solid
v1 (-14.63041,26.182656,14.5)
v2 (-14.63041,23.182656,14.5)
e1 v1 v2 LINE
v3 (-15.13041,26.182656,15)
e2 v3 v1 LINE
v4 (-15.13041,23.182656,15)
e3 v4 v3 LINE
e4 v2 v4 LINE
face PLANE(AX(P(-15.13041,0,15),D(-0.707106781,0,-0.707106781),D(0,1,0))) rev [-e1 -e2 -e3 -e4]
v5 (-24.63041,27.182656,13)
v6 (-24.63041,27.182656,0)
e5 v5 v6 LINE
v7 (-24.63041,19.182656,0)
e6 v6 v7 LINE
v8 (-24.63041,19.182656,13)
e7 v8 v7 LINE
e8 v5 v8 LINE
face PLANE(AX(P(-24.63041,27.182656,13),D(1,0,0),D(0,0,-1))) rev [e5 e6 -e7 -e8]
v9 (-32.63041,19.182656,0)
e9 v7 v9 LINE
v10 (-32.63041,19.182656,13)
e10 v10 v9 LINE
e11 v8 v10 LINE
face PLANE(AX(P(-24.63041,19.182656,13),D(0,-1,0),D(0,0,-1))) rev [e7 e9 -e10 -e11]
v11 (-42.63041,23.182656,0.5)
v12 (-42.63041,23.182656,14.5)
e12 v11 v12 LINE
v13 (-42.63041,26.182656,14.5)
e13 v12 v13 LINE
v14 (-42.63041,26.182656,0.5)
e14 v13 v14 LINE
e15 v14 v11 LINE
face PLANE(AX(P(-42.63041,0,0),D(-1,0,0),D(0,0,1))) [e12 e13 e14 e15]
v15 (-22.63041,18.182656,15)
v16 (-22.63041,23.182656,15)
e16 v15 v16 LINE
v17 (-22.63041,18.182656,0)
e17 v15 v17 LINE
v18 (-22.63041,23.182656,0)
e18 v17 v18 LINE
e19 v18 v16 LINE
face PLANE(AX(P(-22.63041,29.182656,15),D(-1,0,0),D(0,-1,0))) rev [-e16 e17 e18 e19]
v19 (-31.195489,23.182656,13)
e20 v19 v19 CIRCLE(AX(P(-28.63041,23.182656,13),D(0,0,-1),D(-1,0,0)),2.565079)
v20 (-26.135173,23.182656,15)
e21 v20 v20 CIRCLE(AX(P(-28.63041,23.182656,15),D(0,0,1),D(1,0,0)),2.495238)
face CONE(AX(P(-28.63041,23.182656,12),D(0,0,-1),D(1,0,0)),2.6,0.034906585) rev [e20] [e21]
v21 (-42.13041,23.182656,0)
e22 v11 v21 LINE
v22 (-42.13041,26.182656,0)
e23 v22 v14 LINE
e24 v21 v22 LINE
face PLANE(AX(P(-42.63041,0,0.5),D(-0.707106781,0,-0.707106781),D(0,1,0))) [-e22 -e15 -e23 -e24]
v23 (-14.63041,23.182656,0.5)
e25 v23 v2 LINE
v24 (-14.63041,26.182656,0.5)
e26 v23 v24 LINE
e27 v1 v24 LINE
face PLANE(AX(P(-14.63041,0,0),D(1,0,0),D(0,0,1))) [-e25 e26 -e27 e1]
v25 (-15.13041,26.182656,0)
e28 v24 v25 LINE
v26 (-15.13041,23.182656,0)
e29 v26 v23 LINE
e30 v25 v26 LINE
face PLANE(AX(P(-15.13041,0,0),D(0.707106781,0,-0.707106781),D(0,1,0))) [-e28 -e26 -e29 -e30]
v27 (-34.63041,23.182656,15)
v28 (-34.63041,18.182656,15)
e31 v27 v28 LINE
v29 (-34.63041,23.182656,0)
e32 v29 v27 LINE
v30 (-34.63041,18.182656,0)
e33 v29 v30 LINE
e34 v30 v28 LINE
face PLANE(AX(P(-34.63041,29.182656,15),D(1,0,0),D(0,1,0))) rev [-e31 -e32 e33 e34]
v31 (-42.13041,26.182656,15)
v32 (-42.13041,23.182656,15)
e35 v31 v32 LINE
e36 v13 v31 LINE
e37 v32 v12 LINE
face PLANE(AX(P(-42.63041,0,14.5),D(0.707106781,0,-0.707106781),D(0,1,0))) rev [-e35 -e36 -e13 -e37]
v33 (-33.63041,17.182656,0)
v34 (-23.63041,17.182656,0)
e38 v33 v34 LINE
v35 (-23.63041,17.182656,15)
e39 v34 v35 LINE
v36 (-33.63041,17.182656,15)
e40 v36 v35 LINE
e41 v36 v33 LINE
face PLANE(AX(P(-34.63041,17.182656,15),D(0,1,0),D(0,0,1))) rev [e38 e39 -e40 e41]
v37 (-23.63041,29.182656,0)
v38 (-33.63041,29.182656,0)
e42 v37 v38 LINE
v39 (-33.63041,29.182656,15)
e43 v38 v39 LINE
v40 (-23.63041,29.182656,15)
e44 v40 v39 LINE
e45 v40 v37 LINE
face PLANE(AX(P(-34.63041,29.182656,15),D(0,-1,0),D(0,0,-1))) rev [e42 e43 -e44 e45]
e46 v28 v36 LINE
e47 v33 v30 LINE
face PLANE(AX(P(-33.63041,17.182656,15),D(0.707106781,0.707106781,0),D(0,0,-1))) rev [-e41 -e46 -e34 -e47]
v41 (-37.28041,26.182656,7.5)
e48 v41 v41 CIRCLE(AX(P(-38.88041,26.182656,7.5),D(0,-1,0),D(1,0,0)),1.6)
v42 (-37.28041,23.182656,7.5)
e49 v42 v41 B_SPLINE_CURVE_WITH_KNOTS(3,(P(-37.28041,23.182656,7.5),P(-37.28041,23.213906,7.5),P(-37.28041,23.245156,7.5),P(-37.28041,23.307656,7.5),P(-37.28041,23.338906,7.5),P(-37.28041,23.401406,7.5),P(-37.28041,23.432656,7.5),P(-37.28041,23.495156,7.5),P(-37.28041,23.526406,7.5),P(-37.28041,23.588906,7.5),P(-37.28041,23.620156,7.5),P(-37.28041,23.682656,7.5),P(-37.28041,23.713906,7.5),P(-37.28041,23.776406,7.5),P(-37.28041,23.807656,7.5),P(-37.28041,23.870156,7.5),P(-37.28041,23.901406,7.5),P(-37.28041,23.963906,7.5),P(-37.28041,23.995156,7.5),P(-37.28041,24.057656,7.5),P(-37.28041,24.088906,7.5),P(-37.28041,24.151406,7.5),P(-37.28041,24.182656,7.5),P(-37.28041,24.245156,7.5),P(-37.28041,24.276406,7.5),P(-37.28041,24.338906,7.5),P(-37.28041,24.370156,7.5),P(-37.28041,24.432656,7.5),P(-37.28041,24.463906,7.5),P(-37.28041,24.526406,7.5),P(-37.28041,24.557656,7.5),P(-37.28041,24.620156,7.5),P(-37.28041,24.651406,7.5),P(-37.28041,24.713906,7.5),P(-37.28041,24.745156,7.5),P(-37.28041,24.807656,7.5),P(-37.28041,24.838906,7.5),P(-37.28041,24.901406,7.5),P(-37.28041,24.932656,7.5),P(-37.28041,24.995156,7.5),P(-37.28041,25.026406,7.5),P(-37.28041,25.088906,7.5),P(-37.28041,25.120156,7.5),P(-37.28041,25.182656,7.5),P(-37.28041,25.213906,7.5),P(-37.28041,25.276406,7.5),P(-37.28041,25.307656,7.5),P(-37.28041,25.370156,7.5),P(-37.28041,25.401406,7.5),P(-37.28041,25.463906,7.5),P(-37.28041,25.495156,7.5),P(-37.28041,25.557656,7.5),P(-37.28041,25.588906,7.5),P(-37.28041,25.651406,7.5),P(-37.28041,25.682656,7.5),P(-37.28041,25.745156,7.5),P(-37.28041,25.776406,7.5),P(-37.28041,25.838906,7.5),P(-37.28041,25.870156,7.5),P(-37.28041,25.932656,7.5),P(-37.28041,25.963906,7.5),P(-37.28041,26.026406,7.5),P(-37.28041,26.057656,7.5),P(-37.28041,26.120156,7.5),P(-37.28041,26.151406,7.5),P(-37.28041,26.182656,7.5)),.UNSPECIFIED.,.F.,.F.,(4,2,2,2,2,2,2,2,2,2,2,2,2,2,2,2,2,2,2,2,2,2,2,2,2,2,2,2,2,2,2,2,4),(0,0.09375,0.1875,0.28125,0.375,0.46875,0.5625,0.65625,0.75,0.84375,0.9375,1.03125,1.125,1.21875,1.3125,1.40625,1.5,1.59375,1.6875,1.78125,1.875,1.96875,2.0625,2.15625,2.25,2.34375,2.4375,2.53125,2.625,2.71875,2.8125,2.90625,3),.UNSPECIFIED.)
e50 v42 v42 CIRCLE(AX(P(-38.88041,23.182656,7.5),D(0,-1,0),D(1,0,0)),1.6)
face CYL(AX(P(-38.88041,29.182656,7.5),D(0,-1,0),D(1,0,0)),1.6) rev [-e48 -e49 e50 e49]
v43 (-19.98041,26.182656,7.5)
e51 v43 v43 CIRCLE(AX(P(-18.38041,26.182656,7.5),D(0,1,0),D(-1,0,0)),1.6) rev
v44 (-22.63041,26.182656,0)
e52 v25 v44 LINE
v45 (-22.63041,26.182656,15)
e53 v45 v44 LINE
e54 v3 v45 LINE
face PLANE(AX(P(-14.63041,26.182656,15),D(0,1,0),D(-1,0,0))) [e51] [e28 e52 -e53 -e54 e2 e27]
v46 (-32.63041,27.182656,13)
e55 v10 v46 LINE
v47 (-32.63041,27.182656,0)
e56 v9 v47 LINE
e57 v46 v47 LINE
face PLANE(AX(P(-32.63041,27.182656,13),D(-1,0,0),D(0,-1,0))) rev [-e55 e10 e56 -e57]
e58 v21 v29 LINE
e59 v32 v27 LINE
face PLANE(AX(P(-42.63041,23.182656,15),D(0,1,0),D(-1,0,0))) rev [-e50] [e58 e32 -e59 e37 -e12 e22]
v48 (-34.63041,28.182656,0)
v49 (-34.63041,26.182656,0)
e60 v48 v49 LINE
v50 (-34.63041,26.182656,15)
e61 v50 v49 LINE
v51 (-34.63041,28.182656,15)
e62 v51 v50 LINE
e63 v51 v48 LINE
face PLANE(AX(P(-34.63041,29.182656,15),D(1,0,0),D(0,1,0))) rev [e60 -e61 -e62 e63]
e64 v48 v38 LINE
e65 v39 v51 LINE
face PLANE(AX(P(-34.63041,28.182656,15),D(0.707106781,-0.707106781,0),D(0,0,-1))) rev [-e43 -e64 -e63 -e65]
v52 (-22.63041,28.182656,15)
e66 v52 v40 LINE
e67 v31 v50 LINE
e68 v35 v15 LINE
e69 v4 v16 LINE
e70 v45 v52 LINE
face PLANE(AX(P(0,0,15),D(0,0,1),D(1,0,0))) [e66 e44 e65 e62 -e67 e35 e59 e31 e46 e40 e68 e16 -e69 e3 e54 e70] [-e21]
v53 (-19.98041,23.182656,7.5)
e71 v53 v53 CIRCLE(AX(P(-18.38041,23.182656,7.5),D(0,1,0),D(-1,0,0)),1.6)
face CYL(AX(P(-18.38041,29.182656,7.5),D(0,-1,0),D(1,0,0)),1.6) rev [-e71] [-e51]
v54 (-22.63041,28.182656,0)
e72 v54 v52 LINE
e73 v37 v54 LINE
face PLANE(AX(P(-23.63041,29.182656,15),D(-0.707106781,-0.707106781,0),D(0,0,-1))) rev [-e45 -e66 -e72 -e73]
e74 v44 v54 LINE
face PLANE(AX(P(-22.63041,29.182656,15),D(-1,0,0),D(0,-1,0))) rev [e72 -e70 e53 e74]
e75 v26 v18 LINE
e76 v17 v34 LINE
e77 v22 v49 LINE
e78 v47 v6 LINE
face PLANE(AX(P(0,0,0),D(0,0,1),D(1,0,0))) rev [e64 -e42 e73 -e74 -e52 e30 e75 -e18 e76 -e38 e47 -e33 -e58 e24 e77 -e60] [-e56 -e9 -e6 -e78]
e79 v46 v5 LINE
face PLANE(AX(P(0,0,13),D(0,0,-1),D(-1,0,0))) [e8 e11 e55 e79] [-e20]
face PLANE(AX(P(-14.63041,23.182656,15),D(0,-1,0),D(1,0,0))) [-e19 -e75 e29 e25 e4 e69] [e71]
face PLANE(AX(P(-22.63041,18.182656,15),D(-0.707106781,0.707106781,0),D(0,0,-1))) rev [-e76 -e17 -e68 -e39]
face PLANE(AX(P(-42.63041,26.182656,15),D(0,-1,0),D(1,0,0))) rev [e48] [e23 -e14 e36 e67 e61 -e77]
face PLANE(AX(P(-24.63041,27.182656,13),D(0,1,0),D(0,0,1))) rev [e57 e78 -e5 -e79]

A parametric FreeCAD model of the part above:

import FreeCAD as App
import Part
import Sketcher
from FreeCAD import Vector
Q = App.Units.Quantity


def edges_at(feature, points):
    """Names of the edges that pass closest to the given points."""
    edges = feature.Shape.Edges
    near = lambda p: min(range(len(edges)), key=lambda i: edges[i].distToShape(Part.Vertex(*p))[0])
    return sorted({f"Edge{near(p) + 1}" for p in points})


def add_polygon(sketch, points):
    """Adds a closed chain of lines whose ends are joined by coincident constraints."""
    first, n = sketch.GeometryCount, len(points)
    for a, b in zip(points, points[1:] + points[:1]):
        sketch.addGeometry(Part.LineSegment(App.Vector(*a, 0), App.Vector(*b, 0)), False)
    for i in range(n):
        sketch.addConstraint(Sketcher.Constraint("Coincident", first + i, 2, first + (i + 1) % n, 1))

doc = App.newDocument("Part")
body = doc.addObject("PartDesign::Body", "Body")

# Sketch on XY plane
sketch1 = body.newObject("Sketcher::SketchObject", "Sketch")
sketch1.AttachmentSupport = (doc.getObject("XY_Plane"), [""])
sketch1.MapMode = "FlatFace"
add_polygon(sketch1, [(-34.63041, 29.182656), (-34.63041, 17.182656), (-22.63041, 17.182656), (-22.63041, 29.182656)])  # lines 0-3
sketch1.addConstraint(Sketcher.Constraint("Vertical", 0))
sketch1.addConstraint(Sketcher.Constraint("Horizontal", 1))
sketch1.addConstraint(Sketcher.Constraint("Vertical", 2))
sketch1.addConstraint(Sketcher.Constraint("Horizontal", 3))
sketch1.addConstraint(Sketcher.Constraint("Equal", 3, 0))
sketch1.addConstraint(Sketcher.Constraint("DistanceX", 1, 1, 1, 2, Q("12 mm")))
sketch1.addConstraint(Sketcher.Constraint("DistanceX", 0, 2, -1, 1, Q("34.63041 mm")))
sketch1.addConstraint(Sketcher.Constraint("DistanceY", -1, 1, 0, 2, Q("17.182656 mm")))
pad1 = body.newObject("PartDesign::Pad", "Pad")
pad1.Profile = sketch1
pad1.Length = 15

# Sketch on XY plane
sketch2 = body.newObject("Sketcher::SketchObject", "Sketch001")
sketch2.AttachmentSupport = (doc.getObject("XY_Plane"), [""])
sketch2.MapMode = "FlatFace"
sketch2.AttachmentOffset = App.Placement(Vector(0, 0, 12), App.Rotation())
sketch2.addGeometry(Part.Circle(Vector(-28.63041, 23.182656, 0), Vector(0, 0, 1), 2.6), False)
sketch2.addConstraint(Sketcher.Constraint("Diameter", 0, Q("5.2 mm")))
sketch2.addConstraint(Sketcher.Constraint("DistanceX", 0, 3, -1, 1, Q("28.63041 mm")))
sketch2.addConstraint(Sketcher.Constraint("DistanceY", -1, 1, 0, 3, Q("23.182656 mm")))
pocket1 = body.newObject("PartDesign::Pocket", "Pocket")
pocket1.Profile = sketch2
pocket1.Type = "ThroughAll"
pocket1.Reversed = True
pocket1.TaperAngle = -2

# Sketch on XY plane
sketch3 = body.newObject("Sketcher::SketchObject", "Sketch002")
sketch3.AttachmentSupport = (doc.getObject("XY_Plane"), [""])
sketch3.MapMode = "FlatFace"
add_polygon(sketch3, [(-24.63041, 27.182656), (-24.63041, 19.182656), (-32.63041, 19.182656), (-32.63041, 27.182656)])  # lines 0-3
sketch3.addConstraint(Sketcher.Constraint("Vertical", 0))
sketch3.addConstraint(Sketcher.Constraint("Horizontal", 1))
sketch3.addConstraint(Sketcher.Constraint("Vertical", 2))
sketch3.addConstraint(Sketcher.Constraint("Horizontal", 3))
sketch3.addConstraint(Sketcher.Constraint("Equal", 3, 0))
sketch3.addConstraint(Sketcher.Constraint("DistanceX", 1, 2, 1, 1, Q("8 mm")))
sketch3.addConstraint(Sketcher.Constraint("DistanceX", 0, 2, -1, 1, Q("24.63041 mm")))
sketch3.addConstraint(Sketcher.Constraint("DistanceY", -1, 1, 0, 2, Q("19.182656 mm")))
pocket2 = body.newObject("PartDesign::Pocket", "Pocket001")
pocket2.Profile = sketch3
pocket2.Length = 13
pocket2.Reversed = True
doc.recompute()

chamfer = body.newObject("PartDesign::Chamfer", "Chamfer")
chamfer.Base = (pocket2, edges_at(pocket2, [
    (-34.63, 29.183, 7.5),
    (-22.63, 29.183, 7.5),
    (-22.63, 17.183, 7.5),
    (-34.63, 17.183, 7.5),
]))
chamfer.Size = 1

# Sketch on YZ plane
sketch4 = body.newObject("Sketcher::SketchObject", "Sketch003")
sketch4.AttachmentSupport = (doc.getObject("YZ_Plane"), [""])
sketch4.MapMode = "FlatFace"
sketch4.AttachmentOffset = App.Placement(Vector(0, 0, -34.63041), App.Rotation())
add_polygon(sketch4, [(26.182656, 0), (23.182656, 0), (23.182656, 15), (26.182656, 15)])  # lines 0-3
sketch4.addConstraint(Sketcher.Constraint("Horizontal", 0))
sketch4.addConstraint(Sketcher.Constraint("Vertical", 1))
sketch4.addConstraint(Sketcher.Constraint("Horizontal", 2))
sketch4.addConstraint(Sketcher.Constraint("Vertical", 3))
sketch4.addConstraint(Sketcher.Constraint("PointOnObject", 0, 2, -1))
sketch4.addConstraint(Sketcher.Constraint("DistanceX", 0, 2, 0, 1, Q("3 mm")))
sketch4.addConstraint(Sketcher.Constraint("DistanceY", 1, 1, 1, 2, Q("15 mm")))
sketch4.addConstraint(Sketcher.Constraint("DistanceX", -1, 1, 0, 2, Q("23.182656 mm")))
pad2 = body.newObject("PartDesign::Pad", "Pad001")
pad2.Profile = sketch4
pad2.Length = 8
pad2.Reversed = True

# Sketch on XZ plane
sketch5 = body.newObject("Sketcher::SketchObject", "Sketch004")
sketch5.AttachmentSupport = (doc.getObject("XZ_Plane"), [""])
sketch5.MapMode = "FlatFace"
sketch5.AttachmentOffset = App.Placement(Vector(0, 0, -23.182656), App.Rotation())
sketch5.addGeometry(Part.Circle(Vector(-38.88041, 7.5, 0), Vector(0, 0, 1), 1.6), False)
sketch5.addConstraint(Sketcher.Constraint("Diameter", 0, Q("3.2 mm")))
sketch5.addConstraint(Sketcher.Constraint("DistanceY", -1, 1, 0, 3, Q("7.5 mm")))
sketch5.addConstraint(Sketcher.Constraint("DistanceX", 0, 3, -1, 1, Q("38.88041 mm")))
pocket3 = body.newObject("PartDesign::Pocket", "Pocket002")
pocket3.Profile = sketch5
pocket3.Type = "ThroughAll"
doc.recompute()

chamfer2 = body.newObject("PartDesign::Chamfer", "Chamfer001")
chamfer2.Base = (pocket3, edges_at(pocket3, [(-42.63, 24.683, 15), (-42.63, 24.683, 0)]))
chamfer2.Size = 0.5
doc.recompute()

datumplane = body.newObject("PartDesign::Plane", "DatumPlane")
datumplane.AttachmentSupport = (doc.getObject("YZ_Plane"), [""])
datumplane.MapMode = "FlatFace"
datumplane.AttachmentOffset = App.Placement(Vector(0, 0, -28.63041), App.Rotation())
mirrored = body.newObject("PartDesign::Mirrored", "Mirrored")
mirrored.Originals = [pad2, pocket3]
mirrored.MirrorPlane = (datumplane, [""])
body.Tip = mirrored
doc.recompute()

chamfer3 = body.newObject("PartDesign::Chamfer", "Chamfer002")
chamfer3.Base = (mirrored, edges_at(mirrored, [(-14.63, 24.683, 15), (-14.63, 24.683, 0)]))
chamfer3.Size = 0.5

doc.recompute()
